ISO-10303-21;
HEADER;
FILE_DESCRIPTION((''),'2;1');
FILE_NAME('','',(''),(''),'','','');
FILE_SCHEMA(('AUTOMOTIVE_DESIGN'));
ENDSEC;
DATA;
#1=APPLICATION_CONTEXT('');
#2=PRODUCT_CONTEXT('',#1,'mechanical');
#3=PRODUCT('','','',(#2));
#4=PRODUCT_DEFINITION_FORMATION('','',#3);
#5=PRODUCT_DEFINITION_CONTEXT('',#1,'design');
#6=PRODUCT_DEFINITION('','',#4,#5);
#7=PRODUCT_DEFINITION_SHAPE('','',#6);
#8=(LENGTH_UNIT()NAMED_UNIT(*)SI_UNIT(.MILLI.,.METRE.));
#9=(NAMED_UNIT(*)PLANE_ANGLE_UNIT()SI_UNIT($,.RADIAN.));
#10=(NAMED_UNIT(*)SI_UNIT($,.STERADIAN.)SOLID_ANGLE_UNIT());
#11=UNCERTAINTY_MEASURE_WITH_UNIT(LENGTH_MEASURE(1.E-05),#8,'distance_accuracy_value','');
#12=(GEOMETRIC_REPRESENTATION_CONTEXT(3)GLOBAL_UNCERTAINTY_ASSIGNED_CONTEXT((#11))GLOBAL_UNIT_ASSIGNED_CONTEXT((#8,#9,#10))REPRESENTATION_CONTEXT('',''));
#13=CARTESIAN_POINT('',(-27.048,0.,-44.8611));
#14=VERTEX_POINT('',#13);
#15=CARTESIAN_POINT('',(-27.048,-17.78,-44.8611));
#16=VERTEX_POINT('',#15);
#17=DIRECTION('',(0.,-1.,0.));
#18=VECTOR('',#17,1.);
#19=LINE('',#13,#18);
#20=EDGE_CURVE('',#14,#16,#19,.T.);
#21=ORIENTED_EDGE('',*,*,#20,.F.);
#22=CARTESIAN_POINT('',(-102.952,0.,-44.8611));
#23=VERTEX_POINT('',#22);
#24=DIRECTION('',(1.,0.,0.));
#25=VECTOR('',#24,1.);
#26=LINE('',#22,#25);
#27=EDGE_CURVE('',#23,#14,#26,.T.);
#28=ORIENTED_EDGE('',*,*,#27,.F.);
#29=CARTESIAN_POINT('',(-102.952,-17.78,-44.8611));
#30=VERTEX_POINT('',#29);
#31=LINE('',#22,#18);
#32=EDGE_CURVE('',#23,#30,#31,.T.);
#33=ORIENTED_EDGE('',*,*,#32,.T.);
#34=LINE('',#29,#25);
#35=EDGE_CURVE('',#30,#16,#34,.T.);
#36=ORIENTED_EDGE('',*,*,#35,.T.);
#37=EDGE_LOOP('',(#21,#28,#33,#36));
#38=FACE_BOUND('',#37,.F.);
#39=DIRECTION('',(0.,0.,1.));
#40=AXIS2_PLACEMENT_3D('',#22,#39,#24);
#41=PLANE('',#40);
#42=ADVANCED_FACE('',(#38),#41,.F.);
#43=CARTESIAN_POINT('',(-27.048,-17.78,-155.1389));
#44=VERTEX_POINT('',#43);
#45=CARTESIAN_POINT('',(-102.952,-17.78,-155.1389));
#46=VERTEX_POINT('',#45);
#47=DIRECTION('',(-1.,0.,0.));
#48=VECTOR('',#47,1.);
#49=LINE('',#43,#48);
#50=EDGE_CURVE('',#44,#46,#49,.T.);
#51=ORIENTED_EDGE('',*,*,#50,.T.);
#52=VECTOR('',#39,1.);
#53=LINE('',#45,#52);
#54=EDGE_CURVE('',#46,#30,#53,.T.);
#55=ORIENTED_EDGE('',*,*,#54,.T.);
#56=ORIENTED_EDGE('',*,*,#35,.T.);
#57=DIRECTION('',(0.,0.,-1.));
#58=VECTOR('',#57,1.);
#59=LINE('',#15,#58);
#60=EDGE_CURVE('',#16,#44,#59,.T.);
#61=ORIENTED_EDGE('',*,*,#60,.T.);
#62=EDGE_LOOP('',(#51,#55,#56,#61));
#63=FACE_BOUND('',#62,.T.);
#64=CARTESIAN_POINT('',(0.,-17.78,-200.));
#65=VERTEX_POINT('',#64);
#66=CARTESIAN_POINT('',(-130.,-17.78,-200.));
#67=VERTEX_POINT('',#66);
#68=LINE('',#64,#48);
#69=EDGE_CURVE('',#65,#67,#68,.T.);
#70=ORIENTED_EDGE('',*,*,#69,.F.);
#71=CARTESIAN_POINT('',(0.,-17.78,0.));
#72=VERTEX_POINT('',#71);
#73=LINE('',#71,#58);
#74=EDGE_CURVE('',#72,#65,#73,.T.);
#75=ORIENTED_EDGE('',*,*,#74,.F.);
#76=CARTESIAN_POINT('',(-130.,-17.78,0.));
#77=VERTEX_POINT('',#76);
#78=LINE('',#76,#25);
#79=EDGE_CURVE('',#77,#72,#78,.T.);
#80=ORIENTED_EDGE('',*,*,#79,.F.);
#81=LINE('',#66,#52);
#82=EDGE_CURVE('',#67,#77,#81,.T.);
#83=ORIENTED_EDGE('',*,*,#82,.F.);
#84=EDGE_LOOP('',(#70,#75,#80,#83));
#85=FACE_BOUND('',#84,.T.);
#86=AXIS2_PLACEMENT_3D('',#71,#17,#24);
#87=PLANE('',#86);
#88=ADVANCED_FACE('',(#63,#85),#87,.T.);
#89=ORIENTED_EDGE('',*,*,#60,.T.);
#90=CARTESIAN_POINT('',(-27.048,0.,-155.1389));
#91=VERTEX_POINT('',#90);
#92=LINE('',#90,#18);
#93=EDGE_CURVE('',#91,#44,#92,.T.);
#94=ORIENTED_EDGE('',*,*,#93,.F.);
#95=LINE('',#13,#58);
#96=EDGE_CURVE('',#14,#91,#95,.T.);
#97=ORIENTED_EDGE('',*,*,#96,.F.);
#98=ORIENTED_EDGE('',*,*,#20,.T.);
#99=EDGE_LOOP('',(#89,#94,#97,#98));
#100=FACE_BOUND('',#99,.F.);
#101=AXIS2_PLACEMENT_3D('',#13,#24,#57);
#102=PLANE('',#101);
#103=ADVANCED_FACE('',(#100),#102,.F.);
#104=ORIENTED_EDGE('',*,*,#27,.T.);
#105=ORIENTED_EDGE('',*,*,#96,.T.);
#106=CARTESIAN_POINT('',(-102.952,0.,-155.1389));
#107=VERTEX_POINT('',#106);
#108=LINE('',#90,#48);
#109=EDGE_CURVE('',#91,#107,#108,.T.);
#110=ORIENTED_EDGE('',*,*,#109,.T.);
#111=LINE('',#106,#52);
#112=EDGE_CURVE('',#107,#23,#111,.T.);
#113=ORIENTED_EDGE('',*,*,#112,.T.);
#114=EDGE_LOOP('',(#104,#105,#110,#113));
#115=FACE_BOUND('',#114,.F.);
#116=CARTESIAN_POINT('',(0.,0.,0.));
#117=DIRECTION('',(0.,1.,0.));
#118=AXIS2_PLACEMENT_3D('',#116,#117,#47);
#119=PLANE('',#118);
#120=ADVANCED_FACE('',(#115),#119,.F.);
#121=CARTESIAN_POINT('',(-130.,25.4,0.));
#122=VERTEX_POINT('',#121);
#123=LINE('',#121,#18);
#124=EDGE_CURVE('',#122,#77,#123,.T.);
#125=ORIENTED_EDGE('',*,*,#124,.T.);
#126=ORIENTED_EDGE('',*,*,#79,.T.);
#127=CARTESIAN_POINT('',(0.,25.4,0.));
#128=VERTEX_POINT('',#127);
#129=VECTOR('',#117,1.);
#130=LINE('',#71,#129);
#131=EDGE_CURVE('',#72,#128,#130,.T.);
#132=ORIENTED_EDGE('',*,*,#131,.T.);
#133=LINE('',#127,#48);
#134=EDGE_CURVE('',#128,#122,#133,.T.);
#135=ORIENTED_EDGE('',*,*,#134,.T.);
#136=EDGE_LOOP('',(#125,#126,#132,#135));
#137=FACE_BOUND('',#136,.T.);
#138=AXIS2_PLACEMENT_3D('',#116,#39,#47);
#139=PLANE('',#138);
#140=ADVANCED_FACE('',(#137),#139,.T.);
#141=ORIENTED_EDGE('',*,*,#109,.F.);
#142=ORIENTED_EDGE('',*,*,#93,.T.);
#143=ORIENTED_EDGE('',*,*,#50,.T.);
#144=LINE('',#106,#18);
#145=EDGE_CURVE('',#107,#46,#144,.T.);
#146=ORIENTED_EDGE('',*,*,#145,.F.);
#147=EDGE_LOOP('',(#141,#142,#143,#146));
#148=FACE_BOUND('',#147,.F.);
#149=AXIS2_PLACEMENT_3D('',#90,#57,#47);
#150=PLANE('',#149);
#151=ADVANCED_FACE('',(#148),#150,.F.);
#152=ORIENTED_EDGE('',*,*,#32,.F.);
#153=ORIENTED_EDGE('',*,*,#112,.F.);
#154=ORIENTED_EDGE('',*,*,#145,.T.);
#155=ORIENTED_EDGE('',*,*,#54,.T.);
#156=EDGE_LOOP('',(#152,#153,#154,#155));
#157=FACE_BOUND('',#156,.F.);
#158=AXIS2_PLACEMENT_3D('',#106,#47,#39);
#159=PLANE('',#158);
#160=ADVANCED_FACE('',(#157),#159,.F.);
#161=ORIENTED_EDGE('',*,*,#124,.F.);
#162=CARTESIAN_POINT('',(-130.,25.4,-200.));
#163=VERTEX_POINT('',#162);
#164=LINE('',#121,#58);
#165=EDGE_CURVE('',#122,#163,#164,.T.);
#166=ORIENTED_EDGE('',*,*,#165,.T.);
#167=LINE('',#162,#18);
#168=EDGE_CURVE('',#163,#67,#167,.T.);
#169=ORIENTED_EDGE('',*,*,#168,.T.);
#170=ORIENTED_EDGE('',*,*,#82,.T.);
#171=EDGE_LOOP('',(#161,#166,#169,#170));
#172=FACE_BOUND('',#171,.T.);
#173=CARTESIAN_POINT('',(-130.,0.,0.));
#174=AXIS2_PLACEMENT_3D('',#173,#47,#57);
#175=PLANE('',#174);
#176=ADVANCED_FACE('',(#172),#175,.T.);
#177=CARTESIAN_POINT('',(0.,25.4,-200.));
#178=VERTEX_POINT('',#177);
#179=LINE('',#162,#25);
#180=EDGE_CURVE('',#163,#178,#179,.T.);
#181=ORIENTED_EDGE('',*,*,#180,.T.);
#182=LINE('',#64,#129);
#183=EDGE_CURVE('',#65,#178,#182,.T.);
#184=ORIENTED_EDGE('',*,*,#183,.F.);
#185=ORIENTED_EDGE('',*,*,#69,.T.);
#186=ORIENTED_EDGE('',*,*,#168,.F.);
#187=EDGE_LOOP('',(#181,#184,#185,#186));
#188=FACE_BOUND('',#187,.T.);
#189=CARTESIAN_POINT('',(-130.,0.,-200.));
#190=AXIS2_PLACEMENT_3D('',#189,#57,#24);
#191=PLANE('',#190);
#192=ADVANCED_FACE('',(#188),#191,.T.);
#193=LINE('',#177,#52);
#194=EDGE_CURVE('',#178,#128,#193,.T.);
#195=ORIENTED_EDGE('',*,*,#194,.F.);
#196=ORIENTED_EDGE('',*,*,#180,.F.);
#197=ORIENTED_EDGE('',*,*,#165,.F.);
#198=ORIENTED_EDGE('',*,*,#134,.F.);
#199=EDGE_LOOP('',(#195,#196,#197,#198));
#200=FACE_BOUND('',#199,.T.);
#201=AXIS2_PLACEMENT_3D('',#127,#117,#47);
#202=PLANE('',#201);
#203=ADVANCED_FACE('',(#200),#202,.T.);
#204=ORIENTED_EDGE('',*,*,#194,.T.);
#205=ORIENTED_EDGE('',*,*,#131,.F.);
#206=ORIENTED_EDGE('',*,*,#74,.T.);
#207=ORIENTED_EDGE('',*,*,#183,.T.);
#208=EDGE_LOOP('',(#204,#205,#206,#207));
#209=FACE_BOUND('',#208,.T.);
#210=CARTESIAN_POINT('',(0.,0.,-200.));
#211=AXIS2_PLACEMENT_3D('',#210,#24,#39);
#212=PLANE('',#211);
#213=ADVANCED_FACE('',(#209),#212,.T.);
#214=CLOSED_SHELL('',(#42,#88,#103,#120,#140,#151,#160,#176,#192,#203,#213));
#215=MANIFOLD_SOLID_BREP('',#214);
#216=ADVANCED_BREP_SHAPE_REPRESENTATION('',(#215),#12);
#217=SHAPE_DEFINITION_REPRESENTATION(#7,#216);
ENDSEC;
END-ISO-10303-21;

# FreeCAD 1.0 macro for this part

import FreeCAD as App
import Part
import Sketcher

V = App.Vector
Q = App.Units.Quantity


def add_polygon(sketch, points):
    """Adds a closed chain of lines whose ends are joined by coincident constraints."""
    first, n = sketch.GeometryCount, len(points)
    for a, b in zip(points, points[1:] + points[:1]):
        sketch.addGeometry(Part.LineSegment(App.Vector(*a, 0), App.Vector(*b, 0)), False)
    for i in range(n):
        sketch.addConstraint(Sketcher.Constraint("Coincident", first + i, 2, first + (i + 1) % n, 1))

doc = App.newDocument("Part")
body = doc.addObject("PartDesign::Body", "Body")

# Sketch on XZ plane
sketch1 = body.newObject("Sketcher::SketchObject", "Sketch")
sketch1.AttachmentSupport = (doc.getObject("XZ_Plane"), [""])
sketch1.MapMode = "FlatFace"
add_polygon(sketch1, [(-130, 0), (0, 0), (0, -200), (-130, -200)])  # lines 0-3
sketch1.addConstraint(Sketcher.Constraint("Horizontal", 0))
sketch1.addConstraint(Sketcher.Constraint("Vertical", 1))
sketch1.addConstraint(Sketcher.Constraint("Horizontal", 2))
sketch1.addConstraint(Sketcher.Constraint("Vertical", 3))
sketch1.addConstraint(Sketcher.Constraint("Coincident", 0, 2, -1, 1))
sketch1.addConstraint(Sketcher.Constraint("DistanceX", 0, 1, 0, 2, Q("5.1181 in")))
sketch1.addConstraint(Sketcher.Constraint("DistanceY", 1, 2, 1, 1, 200.0))
pad1 = body.newObject("PartDesign::Pad", "Pad")
pad1.Profile = sketch1
pad1.Length = Q("1 in")
pad1.Reversed = True

# Sketch on XZ plane
sketch2 = body.newObject("Sketcher::SketchObject", "Sketch001")
sketch2.AttachmentSupport = (doc.getObject("XZ_Plane"), [""])
sketch2.MapMode = "FlatFace"
add_polygon(sketch2, [(-130, -200), (0, -200), (0, 0), (-130, 0)])  # lines 0-3
add_polygon(sketch2, [(-103, -155), (-103, -45), (-27, -45), (-27, -155)])  # lines 4-7
sketch2.addConstraint(Sketcher.Constraint("Horizontal", 0))
sketch2.addConstraint(Sketcher.Constraint("Vertical", 1))
sketch2.addConstraint(Sketcher.Constraint("Horizontal", 2))
sketch2.addConstraint(Sketcher.Constraint("Vertical", 3))
sketch2.addConstraint(Sketcher.Constraint("Vertical", 4))
sketch2.addConstraint(Sketcher.Constraint("Horizontal", 5))
sketch2.addConstraint(Sketcher.Constraint("Vertical", 6))
sketch2.addConstraint(Sketcher.Constraint("Horizontal", 7))
sketch2.addConstraint(Sketcher.Constraint("Coincident", 1, 2, -1, 1))
sketch2.addConstraint(Sketcher.Constraint("DistanceX", 0, 1, 0, 2, Q("5.1181 in")))
sketch2.addConstraint(Sketcher.Constraint("DistanceX", 5, 1, 5, 2, 75.904))
sketch2.addConstraint(Sketcher.Constraint("DistanceY", 1, 1, 1, 2, 200.0))
sketch2.addConstraint(Sketcher.Constraint("DistanceY", 4, 1, 4, 2, 110.2778))
sketch2.addConstraint(Sketcher.Constraint("DistanceX", 4, 2, -1, 1, 102.952))
sketch2.addConstraint(Sketcher.Constraint("DistanceY", 4, 2, -1, 1, 44.861))
pad2 = body.newObject("PartDesign::Pad", "Pad001")
pad2.Profile = sketch2
pad2.Length = Q("0.7 in")

doc.recompute()
